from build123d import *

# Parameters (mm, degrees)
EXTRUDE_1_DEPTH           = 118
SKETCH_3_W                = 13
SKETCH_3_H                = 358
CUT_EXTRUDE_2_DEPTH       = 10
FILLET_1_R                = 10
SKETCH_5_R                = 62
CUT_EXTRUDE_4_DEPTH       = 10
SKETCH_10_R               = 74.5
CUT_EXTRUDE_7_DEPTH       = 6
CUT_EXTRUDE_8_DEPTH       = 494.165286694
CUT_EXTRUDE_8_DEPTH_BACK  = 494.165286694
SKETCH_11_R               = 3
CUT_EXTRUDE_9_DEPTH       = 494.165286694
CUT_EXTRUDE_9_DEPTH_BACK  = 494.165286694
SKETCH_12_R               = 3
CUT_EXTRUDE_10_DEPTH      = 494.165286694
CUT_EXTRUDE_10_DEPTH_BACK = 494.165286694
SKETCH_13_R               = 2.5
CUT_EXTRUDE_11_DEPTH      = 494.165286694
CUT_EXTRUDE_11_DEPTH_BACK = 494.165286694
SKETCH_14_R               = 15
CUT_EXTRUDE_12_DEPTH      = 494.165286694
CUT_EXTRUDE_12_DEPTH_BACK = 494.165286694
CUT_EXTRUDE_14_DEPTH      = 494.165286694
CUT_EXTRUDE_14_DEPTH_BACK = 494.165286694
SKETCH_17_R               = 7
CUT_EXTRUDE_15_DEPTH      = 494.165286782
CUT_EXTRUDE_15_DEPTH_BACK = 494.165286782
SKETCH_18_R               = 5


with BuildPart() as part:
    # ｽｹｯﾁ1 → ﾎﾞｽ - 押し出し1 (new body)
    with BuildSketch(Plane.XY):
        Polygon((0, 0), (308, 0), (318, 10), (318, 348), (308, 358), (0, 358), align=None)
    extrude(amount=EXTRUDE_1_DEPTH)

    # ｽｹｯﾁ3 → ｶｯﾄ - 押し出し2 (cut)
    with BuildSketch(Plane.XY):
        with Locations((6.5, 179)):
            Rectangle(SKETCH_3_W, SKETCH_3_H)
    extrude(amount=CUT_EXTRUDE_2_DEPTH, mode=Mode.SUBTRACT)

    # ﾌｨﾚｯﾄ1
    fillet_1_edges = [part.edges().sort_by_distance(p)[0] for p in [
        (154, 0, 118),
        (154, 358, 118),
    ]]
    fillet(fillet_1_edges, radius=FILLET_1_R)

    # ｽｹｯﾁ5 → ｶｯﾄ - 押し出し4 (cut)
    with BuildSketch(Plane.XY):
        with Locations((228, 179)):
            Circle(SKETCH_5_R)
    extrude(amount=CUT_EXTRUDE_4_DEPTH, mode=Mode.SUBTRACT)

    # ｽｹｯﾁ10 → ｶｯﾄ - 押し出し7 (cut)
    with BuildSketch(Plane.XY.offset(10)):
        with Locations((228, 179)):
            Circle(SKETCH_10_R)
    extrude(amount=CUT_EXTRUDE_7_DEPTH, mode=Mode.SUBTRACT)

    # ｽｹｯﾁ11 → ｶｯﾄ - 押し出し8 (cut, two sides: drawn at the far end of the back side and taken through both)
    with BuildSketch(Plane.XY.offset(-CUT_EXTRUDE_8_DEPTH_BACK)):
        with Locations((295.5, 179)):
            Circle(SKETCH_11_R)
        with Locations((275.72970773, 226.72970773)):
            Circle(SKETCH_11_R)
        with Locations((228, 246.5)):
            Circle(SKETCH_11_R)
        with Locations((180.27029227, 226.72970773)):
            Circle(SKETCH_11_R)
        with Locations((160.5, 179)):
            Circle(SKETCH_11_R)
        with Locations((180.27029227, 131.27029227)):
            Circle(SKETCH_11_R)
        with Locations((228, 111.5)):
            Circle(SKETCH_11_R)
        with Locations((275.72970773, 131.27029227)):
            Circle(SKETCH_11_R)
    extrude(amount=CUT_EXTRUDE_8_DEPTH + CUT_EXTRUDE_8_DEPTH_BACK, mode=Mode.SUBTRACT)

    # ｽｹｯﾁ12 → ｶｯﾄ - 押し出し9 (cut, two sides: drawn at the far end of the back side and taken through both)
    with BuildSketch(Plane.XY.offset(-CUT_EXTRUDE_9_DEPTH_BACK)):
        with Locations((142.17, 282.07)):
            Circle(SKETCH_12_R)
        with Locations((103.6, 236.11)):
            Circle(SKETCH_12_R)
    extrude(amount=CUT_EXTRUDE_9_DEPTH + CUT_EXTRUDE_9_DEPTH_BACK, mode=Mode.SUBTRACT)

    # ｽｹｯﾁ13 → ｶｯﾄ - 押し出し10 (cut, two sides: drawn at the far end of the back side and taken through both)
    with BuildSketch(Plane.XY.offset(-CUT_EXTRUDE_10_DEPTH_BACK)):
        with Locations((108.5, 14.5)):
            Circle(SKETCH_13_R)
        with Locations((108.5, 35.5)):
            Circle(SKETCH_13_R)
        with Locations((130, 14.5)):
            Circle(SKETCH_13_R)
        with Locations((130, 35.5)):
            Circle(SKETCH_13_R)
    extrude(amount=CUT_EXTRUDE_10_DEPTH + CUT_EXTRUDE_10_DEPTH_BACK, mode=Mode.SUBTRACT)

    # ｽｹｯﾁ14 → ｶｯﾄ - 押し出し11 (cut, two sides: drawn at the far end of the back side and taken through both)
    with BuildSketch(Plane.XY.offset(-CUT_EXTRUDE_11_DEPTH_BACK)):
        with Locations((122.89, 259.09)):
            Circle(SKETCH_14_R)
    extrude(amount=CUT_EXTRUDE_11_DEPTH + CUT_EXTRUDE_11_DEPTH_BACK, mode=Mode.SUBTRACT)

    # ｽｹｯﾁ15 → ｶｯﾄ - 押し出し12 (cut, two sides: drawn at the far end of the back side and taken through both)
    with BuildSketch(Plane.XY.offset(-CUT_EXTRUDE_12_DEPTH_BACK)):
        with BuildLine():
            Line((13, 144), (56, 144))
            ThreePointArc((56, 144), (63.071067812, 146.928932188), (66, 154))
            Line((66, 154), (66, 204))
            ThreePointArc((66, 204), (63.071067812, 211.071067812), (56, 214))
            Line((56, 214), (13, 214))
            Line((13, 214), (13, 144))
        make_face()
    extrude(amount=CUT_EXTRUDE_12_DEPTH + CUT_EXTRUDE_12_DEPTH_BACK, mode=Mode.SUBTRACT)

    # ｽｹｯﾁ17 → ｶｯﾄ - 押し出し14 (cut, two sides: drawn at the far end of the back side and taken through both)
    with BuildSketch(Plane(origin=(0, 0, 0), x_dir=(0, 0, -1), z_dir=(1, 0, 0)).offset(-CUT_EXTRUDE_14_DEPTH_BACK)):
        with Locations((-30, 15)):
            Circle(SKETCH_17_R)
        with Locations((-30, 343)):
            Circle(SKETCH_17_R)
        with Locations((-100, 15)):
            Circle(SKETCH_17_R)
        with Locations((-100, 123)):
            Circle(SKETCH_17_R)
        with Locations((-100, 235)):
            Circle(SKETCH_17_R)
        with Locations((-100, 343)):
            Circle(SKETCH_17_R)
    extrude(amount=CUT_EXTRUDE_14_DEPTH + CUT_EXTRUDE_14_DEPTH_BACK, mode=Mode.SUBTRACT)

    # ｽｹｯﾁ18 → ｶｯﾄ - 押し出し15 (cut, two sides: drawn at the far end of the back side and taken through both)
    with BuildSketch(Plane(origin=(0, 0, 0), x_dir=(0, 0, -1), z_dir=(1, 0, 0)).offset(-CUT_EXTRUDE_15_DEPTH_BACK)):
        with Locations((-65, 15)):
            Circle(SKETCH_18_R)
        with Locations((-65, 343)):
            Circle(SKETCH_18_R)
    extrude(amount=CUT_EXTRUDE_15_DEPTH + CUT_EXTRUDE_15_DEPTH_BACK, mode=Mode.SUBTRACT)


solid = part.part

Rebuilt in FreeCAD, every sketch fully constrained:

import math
import FreeCAD as App
import Part
import Sketcher
from FreeCAD import Vector


def edges_at(feature, points):
    """Names of the edges that pass closest to the given points."""
    edges = feature.Shape.Edges
    near = lambda p: min(range(len(edges)), key=lambda i: edges[i].distToShape(Part.Vertex(*p))[0])
    return sorted({f"Edge{near(p) + 1}" for p in points})


def add_polygon(sketch, points):
    """Adds a closed chain of lines whose ends are joined by coincident constraints."""
    first, n = sketch.GeometryCount, len(points)
    for a, b in zip(points, points[1:] + points[:1]):
        sketch.addGeometry(Part.LineSegment(App.Vector(*a, 0), App.Vector(*b, 0)), False)
    for i in range(n):
        sketch.addConstraint(Sketcher.Constraint("Coincident", first + i, 2, first + (i + 1) % n, 1))

doc = App.newDocument("Part")
body = doc.addObject("PartDesign::Body", "Body")

sketch1 = body.newObject("Sketcher::SketchObject", "Sketch")
sketch1.AttachmentSupport = (doc.getObject("XY_Plane"), [""])
sketch1.MapMode = "FlatFace"
add_polygon(sketch1, [(0, 0), (308, 0), (318, 10), (318, 348), (308, 358), (0, 358)])
sketch1.addConstraint(Sketcher.Constraint("Horizontal", 0))
sketch1.addConstraint(Sketcher.Constraint("Vertical", 2))
sketch1.addConstraint(Sketcher.Constraint("Horizontal", 4))
sketch1.addConstraint(Sketcher.Constraint("Vertical", 5))
sketch1.addConstraint(Sketcher.Constraint("Coincident", 5, 2, -1, 1))
sketch1.addConstraint(Sketcher.Constraint("Perpendicular", 1, 3))
sketch1.addConstraint(Sketcher.Constraint("Vertical", 0, 2, 3, 2))
sketch1.addConstraint(Sketcher.Constraint("Equal", 1, 3))
sketch1.addConstraint(Sketcher.Constraint("DistanceX", 0, 1, 0, 2, 308.0))
sketch1.addConstraint(Sketcher.Constraint("DistanceY", 2, 1, 2, 2, 338.0))
sketch1.addConstraint(Sketcher.Constraint("DistanceY", 5, 2, 5, 1, 358.0))
pad1 = body.newObject("PartDesign::Pad", "Pad")
pad1.Profile = sketch1
pad1.Length = 118

sketch2 = body.newObject("Sketcher::SketchObject", "Sketch001")
sketch2.AttachmentSupport = (doc.getObject("XY_Plane"), [""])
sketch2.MapMode = "FlatFace"
add_polygon(sketch2, [(0, 358), (0, 0), (13, 0), (13, 358)])
sketch2.addConstraint(Sketcher.Constraint("Vertical", 0))
sketch2.addConstraint(Sketcher.Constraint("Horizontal", 1))
sketch2.addConstraint(Sketcher.Constraint("Vertical", 2))
sketch2.addConstraint(Sketcher.Constraint("Horizontal", 3))
sketch2.addConstraint(Sketcher.Constraint("Coincident", 0, 2, -1, 1))
sketch2.addConstraint(Sketcher.Constraint("DistanceX", 1, 1, 1, 2, 13.0))
sketch2.addConstraint(Sketcher.Constraint("DistanceY", 0, 2, 0, 1, 358.0))
pocket1 = body.newObject("PartDesign::Pocket", "Pocket")
pocket1.Profile = sketch2
pocket1.Length = 10
pocket1.Reversed = True
doc.recompute()

fillet = body.newObject("PartDesign::Fillet", "Fillet")
fillet.Base = (pocket1, edges_at(pocket1, [(154, 0, 118), (154, 358, 118)]))
fillet.Radius = 10

sketch3 = body.newObject("Sketcher::SketchObject", "Sketch002")
sketch3.AttachmentSupport = (doc.getObject("XY_Plane"), [""])
sketch3.MapMode = "FlatFace"
sketch3.addGeometry(Part.Circle(Vector(228, 179, 0), Vector(0, 0, 1), 62), False)
sketch3.addConstraint(Sketcher.Constraint("Diameter", 0, 124.0))
sketch3.addConstraint(Sketcher.Constraint("DistanceX", -1, 1, 0, 3, 228.0))
sketch3.addConstraint(Sketcher.Constraint("DistanceY", -1, 1, 0, 3, 179.0))
pocket2 = body.newObject("PartDesign::Pocket", "Pocket001")
pocket2.Profile = sketch3
pocket2.Length = 10
pocket2.Reversed = True

sketch4 = body.newObject("Sketcher::SketchObject", "Sketch003")
sketch4.AttachmentSupport = (doc.getObject("XY_Plane"), [""])
sketch4.MapMode = "FlatFace"
sketch4.AttachmentOffset = App.Placement(Vector(0, 0, 10), App.Rotation())
sketch4.addGeometry(Part.Circle(Vector(228, 179, 0), Vector(0, 0, 1), 74), False)
sketch4.addConstraint(Sketcher.Constraint("Diameter", 0, 149.0))
sketch4.addConstraint(Sketcher.Constraint("DistanceX", -1, 1, 0, 3, 228.0))
sketch4.addConstraint(Sketcher.Constraint("DistanceY", -1, 1, 0, 3, 179.0))
pocket3 = body.newObject("PartDesign::Pocket", "Pocket002")
pocket3.Profile = sketch4
pocket3.Length = 6
pocket3.Reversed = True

sketch5 = body.newObject("Sketcher::SketchObject", "Sketch004")
sketch5.AttachmentSupport = (doc.getObject("XY_Plane"), [""])
sketch5.MapMode = "FlatFace"
sketch5.addGeometry(Part.Circle(Vector(295.5, 179, 0), Vector(0, 0, 1), 3), False)
sketch5.addGeometry(Part.Circle(Vector(275.7, 226.7, 0), Vector(0, 0, 1), 3), False)
sketch5.addGeometry(Part.Circle(Vector(228, 246.5, 0), Vector(0, 0, 1), 3), False)
sketch5.addGeometry(Part.Circle(Vector(180.3, 226.7, 0), Vector(0, 0, 1), 3), False)
sketch5.addGeometry(Part.Circle(Vector(160.5, 179, 0), Vector(0, 0, 1), 3), False)
sketch5.addGeometry(Part.Circle(Vector(180.3, 131.3, 0), Vector(0, 0, 1), 3), False)
sketch5.addGeometry(Part.Circle(Vector(228, 111.5, 0), Vector(0, 0, 1), 3), False)
sketch5.addGeometry(Part.Circle(Vector(275.7, 131.3, 0), Vector(0, 0, 1), 3), False)
sketch5.addConstraint(Sketcher.Constraint("Equal", 0, 1))
sketch5.addConstraint(Sketcher.Constraint("Equal", 1, 2))
sketch5.addConstraint(Sketcher.Constraint("Equal", 2, 3))
sketch5.addConstraint(Sketcher.Constraint("Equal", 3, 4))
sketch5.addConstraint(Sketcher.Constraint("Equal", 4, 5))
sketch5.addConstraint(Sketcher.Constraint("Equal", 5, 6))
sketch5.addConstraint(Sketcher.Constraint("Equal", 6, 7))
sketch5.addConstraint(Sketcher.Constraint("Horizontal", 1, 3, 3, 3))
sketch5.addConstraint(Sketcher.Constraint("Horizontal", 0, 3, 4, 3))
sketch5.addConstraint(Sketcher.Constraint("Horizontal", 5, 3, 7, 3))
sketch5.addConstraint(Sketcher.Constraint("Vertical", 3, 3, 5, 3))
sketch5.addConstraint(Sketcher.Constraint("Vertical", 2, 3, 6, 3))
sketch5.addConstraint(Sketcher.Constraint("Vertical", 1, 3, 7, 3))
sketch5.addConstraint(Sketcher.Constraint("Diameter", 0, 6.0))
sketch5.addConstraint(Sketcher.Constraint("DistanceY", -1, 1, 0, 3, 179.0))
sketch5.addConstraint(Sketcher.Constraint("DistanceX", -1, 1, 2, 3, 228.0))
sketch5.addConstraint(Sketcher.Constraint("DistanceX", 4, 3, 0, 3, 135.0))
sketch5.addConstraint(Sketcher.Constraint("DistanceX", -1, 1, 0, 3, 295.5))
sketch5.addConstraint(Sketcher.Constraint("DistanceY", -1, 1, 2, 3, 246.5))
sketch5.addConstraint(Sketcher.Constraint("DistanceY", -1, 1, 6, 3, 111.5))
sketch5.addConstraint(Sketcher.Constraint("DistanceX", -1, 1, 1, 3, 275.729708))
sketch5.addConstraint(Sketcher.Constraint("DistanceY", -1, 1, 1, 3, 226.729708))
sketch5.addConstraint(Sketcher.Constraint("DistanceX", -1, 1, 3, 3, 180.270292))
sketch5.addConstraint(Sketcher.Constraint("DistanceY", -1, 1, 5, 3, 131.270292))
pocket4 = body.newObject("PartDesign::Pocket", "Pocket003")
pocket4.Profile = sketch5
pocket4.Type = "ThroughAll"
pocket4.Midplane = True

sketch6 = body.newObject("Sketcher::SketchObject", "Sketch005")
sketch6.AttachmentSupport = (doc.getObject("XY_Plane"), [""])
sketch6.MapMode = "FlatFace"
sketch6.addGeometry(Part.Circle(Vector(142.2, 282.1, 0), Vector(0, 0, 1), 3), False)
sketch6.addGeometry(Part.Circle(Vector(103.6, 236.1, 0), Vector(0, 0, 1), 3), False)
sketch6.addConstraint(Sketcher.Constraint("Equal", 0, 1))
sketch6.addConstraint(Sketcher.Constraint("Diameter", 0, 6.0))
sketch6.addConstraint(Sketcher.Constraint("DistanceX", -1, 1, 1, 3, 103.6))
sketch6.addConstraint(Sketcher.Constraint("DistanceX", -1, 1, 0, 3, 142.17))
sketch6.addConstraint(Sketcher.Constraint("DistanceY", -1, 1, 0, 3, 282.07))
sketch6.addConstraint(Sketcher.Constraint("DistanceY", -1, 1, 1, 3, 236.11))
pocket5 = body.newObject("PartDesign::Pocket", "Pocket004")
pocket5.Profile = sketch6
pocket5.Type = "ThroughAll"
pocket5.Midplane = True

sketch7 = body.newObject("Sketcher::SketchObject", "Sketch006")
sketch7.AttachmentSupport = (doc.getObject("XY_Plane"), [""])
sketch7.MapMode = "FlatFace"
sketch7.addGeometry(Part.Circle(Vector(108.5, 14.5, 0), Vector(0, 0, 1), 2.5), False)
sketch7.addGeometry(Part.Circle(Vector(108.5, 35.5, 0), Vector(0, 0, 1), 2.5), False)
sketch7.addGeometry(Part.Circle(Vector(130, 14.5, 0), Vector(0, 0, 1), 2.5), False)
sketch7.addGeometry(Part.Circle(Vector(130, 35.5, 0), Vector(0, 0, 1), 2.5), False)
sketch7.addConstraint(Sketcher.Constraint("Equal", 0, 1))
sketch7.addConstraint(Sketcher.Constraint("Equal", 1, 2))
sketch7.addConstraint(Sketcher.Constraint("Equal", 2, 3))
sketch7.addConstraint(Sketcher.Constraint("Horizontal", 0, 3, 2, 3))
sketch7.addConstraint(Sketcher.Constraint("Horizontal", 1, 3, 3, 3))
sketch7.addConstraint(Sketcher.Constraint("Vertical", 0, 3, 1, 3))
sketch7.addConstraint(Sketcher.Constraint("Vertical", 2, 3, 3, 3))
sketch7.addConstraint(Sketcher.Constraint("Diameter", 0, 5.0))
sketch7.addConstraint(Sketcher.Constraint("DistanceX", -1, 1, 2, 3, 130.0))
sketch7.addConstraint(Sketcher.Constraint("DistanceY", 0, 3, 1, 3, 21.0))
sketch7.addConstraint(Sketcher.Constraint("DistanceX", -1, 1, 0, 3, 108.5))
sketch7.addConstraint(Sketcher.Constraint("DistanceY", -1, 1, 0, 3, 14.5))
pocket6 = body.newObject("PartDesign::Pocket", "Pocket005")
pocket6.Profile = sketch7
pocket6.Type = "ThroughAll"
pocket6.Midplane = True

sketch8 = body.newObject("Sketcher::SketchObject", "Sketch007")
sketch8.AttachmentSupport = (doc.getObject("XY_Plane"), [""])
sketch8.MapMode = "FlatFace"
sketch8.addGeometry(Part.Circle(Vector(123, 259, 0), Vector(0, 0, 1), 15), False)
sketch8.addConstraint(Sketcher.Constraint("Diameter", 0, 30.0))
sketch8.addConstraint(Sketcher.Constraint("DistanceX", -1, 1, 0, 3, 122.89))
sketch8.addConstraint(Sketcher.Constraint("DistanceY", -1, 1, 0, 3, 259.09))
pocket7 = body.newObject("PartDesign::Pocket", "Pocket006")
pocket7.Profile = sketch8
pocket7.Type = "ThroughAll"
pocket7.Midplane = True

sketch9 = body.newObject("Sketcher::SketchObject", "Sketch008")
sketch9.AttachmentSupport = (doc.getObject("XY_Plane"), [""])
sketch9.MapMode = "FlatFace"
sketch9.addGeometry(Part.LineSegment(Vector(13, 144, 0), Vector(56, 144, 0)), False)
sketch9.addGeometry(Part.ArcOfCircle(Part.Circle(Vector(56, 154, 0), Vector(0, 0, 1), 10), math.radians(-90), math.radians(0)), False)
sketch9.addGeometry(Part.LineSegment(Vector(66, 154, 0), Vector(66, 204, 0)), False)
sketch9.addGeometry(Part.ArcOfCircle(Part.Circle(Vector(56, 204, 0), Vector(0, 0, 1), 10), math.radians(0), math.radians(90)), False)
sketch9.addGeometry(Part.LineSegment(Vector(56, 214, 0), Vector(13, 214, 0)), False)
sketch9.addGeometry(Part.LineSegment(Vector(13, 214, 0), Vector(13, 144, 0)), False)
sketch9.addConstraint(Sketcher.Constraint("Tangent", 0, 2, 1, 1))
sketch9.addConstraint(Sketcher.Constraint("Tangent", 1, 2, 2, 1))
sketch9.addConstraint(Sketcher.Constraint("Tangent", 2, 2, 3, 1))
sketch9.addConstraint(Sketcher.Constraint("Tangent", 3, 2, 4, 1))
sketch9.addConstraint(Sketcher.Constraint("Coincident", 4, 2, 5, 1))
sketch9.addConstraint(Sketcher.Constraint("Coincident", 5, 2, 0, 1))
sketch9.addConstraint(Sketcher.Constraint("Horizontal", 0))
sketch9.addConstraint(Sketcher.Constraint("Vertical", 2))
sketch9.addConstraint(Sketcher.Constraint("Horizontal", 4))
sketch9.addConstraint(Sketcher.Constraint("Vertical", 5))
sketch9.addConstraint(Sketcher.Constraint("Equal", 1, 3))
sketch9.addConstraint(Sketcher.Constraint("Radius", 1, 10.0))
sketch9.addConstraint(Sketcher.Constraint("DistanceX", 0, 1, 0, 2, 43.0))
sketch9.addConstraint(Sketcher.Constraint("DistanceY", 2, 1, 2, 2, 50.0))
sketch9.addConstraint(Sketcher.Constraint("DistanceX", -1, 1, 1, 3, 56.0))
sketch9.addConstraint(Sketcher.Constraint("DistanceY", -1, 1, 1, 3, 154.0))
pocket8 = body.newObject("PartDesign::Pocket", "Pocket007")
pocket8.Profile = sketch9
pocket8.Type = "ThroughAll"
pocket8.Midplane = True

sketch10 = body.newObject("Sketcher::SketchObject", "Sketch009")
sketch10.AttachmentSupport = (doc.getObject("YZ_Plane"), [""])
sketch10.MapMode = "FlatFace"
sketch10.addGeometry(Part.Circle(Vector(15, 30, 0), Vector(0, 0, 1), 7), False)
sketch10.addGeometry(Part.Circle(Vector(343, 30, 0), Vector(0, 0, 1), 7), False)
sketch10.addGeometry(Part.Circle(Vector(15, 100, 0), Vector(0, 0, 1), 7), False)
sketch10.addGeometry(Part.Circle(Vector(123, 100, 0), Vector(0, 0, 1), 7), False)
sketch10.addGeometry(Part.Circle(Vector(235, 100, 0), Vector(0, 0, 1), 7), False)
sketch10.addGeometry(Part.Circle(Vector(343, 100, 0), Vector(0, 0, 1), 7), False)
sketch10.addConstraint(Sketcher.Constraint("Equal", 0, 1))
sketch10.addConstraint(Sketcher.Constraint("Equal", 1, 2))
sketch10.addConstraint(Sketcher.Constraint("Equal", 2, 3))
sketch10.addConstraint(Sketcher.Constraint("Equal", 3, 4))
sketch10.addConstraint(Sketcher.Constraint("Equal", 4, 5))
sketch10.addConstraint(Sketcher.Constraint("Horizontal", 0, 3, 1, 3))
sketch10.addConstraint(Sketcher.Constraint("Horizontal", 2, 3, 3, 3))
sketch10.addConstraint(Sketcher.Constraint("Horizontal", 3, 3, 4, 3))
sketch10.addConstraint(Sketcher.Constraint("Horizontal", 4, 3, 5, 3))
sketch10.addConstraint(Sketcher.Constraint("Vertical", 0, 3, 2, 3))
sketch10.addConstraint(Sketcher.Constraint("Vertical", 1, 3, 5, 3))
sketch10.addConstraint(Sketcher.Constraint("Diameter", 0, 14.0))
sketch10.addConstraint(Sketcher.Constraint("DistanceX", -1, 1, 0, 3, 15.0))
sketch10.addConstraint(Sketcher.Constraint("DistanceY", -1, 1, 0, 3, 30.0))
sketch10.addConstraint(Sketcher.Constraint("DistanceX", -1, 1, 1, 3, 343.0))
sketch10.addConstraint(Sketcher.Constraint("DistanceY", -1, 1, 2, 3, 100.0))
sketch10.addConstraint(Sketcher.Constraint("DistanceX", -1, 1, 3, 3, 123.0))
sketch10.addConstraint(Sketcher.Constraint("DistanceX", -1, 1, 4, 3, 235.0))
pocket9 = body.newObject("PartDesign::Pocket", "Pocket008")
pocket9.Profile = sketch10
pocket9.Type = "ThroughAll"
pocket9.Midplane = True

sketch11 = body.newObject("Sketcher::SketchObject", "Sketch010")
sketch11.AttachmentSupport = (doc.getObject("YZ_Plane"), [""])
sketch11.MapMode = "FlatFace"
sketch11.addGeometry(Part.Circle(Vector(15, 65, 0), Vector(0, 0, 1), 5), False)
sketch11.addGeometry(Part.Circle(Vector(343, 65, 0), Vector(0, 0, 1), 5), False)
sketch11.addConstraint(Sketcher.Constraint("Equal", 0, 1))
sketch11.addConstraint(Sketcher.Constraint("Horizontal", 0, 3, 1, 3))
sketch11.addConstraint(Sketcher.Constraint("Diameter", 0, 10.0))
sketch11.addConstraint(Sketcher.Constraint("DistanceX", -1, 1, 0, 3, 15.0))
sketch11.addConstraint(Sketcher.Constraint("DistanceY", -1, 1, 0, 3, 65.0))
sketch11.addConstraint(Sketcher.Constraint("DistanceX", -1, 1, 1, 3, 343.0))
pocket10 = body.newObject("PartDesign::Pocket", "Pocket009")
pocket10.Profile = sketch11
pocket10.Type = "ThroughAll"
pocket10.Midplane = True

doc.recompute()
